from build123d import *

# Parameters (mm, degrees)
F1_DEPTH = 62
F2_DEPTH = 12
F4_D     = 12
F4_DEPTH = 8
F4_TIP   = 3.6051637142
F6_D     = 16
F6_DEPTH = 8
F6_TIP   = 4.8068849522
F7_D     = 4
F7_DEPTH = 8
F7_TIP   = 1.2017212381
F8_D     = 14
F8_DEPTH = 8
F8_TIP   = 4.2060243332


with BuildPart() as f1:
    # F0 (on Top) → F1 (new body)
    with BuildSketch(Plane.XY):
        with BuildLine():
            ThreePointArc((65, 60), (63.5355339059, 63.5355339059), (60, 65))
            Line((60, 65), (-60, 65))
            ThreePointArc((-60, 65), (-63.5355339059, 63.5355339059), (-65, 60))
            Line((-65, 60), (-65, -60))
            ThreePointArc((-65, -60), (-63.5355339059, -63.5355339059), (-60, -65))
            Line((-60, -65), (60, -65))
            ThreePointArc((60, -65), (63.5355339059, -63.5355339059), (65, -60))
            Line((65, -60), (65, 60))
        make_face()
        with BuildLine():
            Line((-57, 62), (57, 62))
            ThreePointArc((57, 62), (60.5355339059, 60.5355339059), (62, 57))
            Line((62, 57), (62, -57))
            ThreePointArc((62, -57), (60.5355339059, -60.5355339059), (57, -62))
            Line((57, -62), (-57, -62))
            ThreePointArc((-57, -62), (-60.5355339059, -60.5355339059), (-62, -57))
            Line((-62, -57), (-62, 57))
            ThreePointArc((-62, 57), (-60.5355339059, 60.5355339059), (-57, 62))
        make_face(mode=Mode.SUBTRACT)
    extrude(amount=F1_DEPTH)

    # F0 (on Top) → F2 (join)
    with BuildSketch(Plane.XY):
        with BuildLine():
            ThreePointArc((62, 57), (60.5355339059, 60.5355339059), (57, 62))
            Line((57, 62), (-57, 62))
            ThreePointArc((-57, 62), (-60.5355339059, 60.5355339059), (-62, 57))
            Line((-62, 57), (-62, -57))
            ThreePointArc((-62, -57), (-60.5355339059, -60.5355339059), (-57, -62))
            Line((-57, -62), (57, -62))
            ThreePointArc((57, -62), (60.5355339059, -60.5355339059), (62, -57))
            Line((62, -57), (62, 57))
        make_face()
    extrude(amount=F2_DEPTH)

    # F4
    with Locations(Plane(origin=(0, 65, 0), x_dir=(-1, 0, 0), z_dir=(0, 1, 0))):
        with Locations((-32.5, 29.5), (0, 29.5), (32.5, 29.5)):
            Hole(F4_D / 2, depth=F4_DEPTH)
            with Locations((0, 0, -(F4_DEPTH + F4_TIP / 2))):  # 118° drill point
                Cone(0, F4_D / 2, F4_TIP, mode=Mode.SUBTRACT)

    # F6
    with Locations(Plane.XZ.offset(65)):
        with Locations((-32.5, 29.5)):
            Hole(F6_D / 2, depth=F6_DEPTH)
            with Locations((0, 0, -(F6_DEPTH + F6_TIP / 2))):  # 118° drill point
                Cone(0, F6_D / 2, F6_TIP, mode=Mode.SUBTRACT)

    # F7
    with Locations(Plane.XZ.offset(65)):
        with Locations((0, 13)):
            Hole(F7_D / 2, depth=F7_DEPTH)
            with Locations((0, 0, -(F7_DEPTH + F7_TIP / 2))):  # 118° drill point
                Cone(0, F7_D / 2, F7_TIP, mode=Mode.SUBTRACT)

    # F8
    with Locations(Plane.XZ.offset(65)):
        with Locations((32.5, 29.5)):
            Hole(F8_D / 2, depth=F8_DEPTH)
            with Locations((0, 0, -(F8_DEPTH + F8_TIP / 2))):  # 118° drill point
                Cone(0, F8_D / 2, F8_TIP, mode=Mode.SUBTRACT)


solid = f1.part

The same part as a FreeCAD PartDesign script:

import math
import FreeCAD as App
import Part
import Sketcher
from FreeCAD import Vector
Q = App.Units.Quantity

doc = App.newDocument("Part")
params = doc.addObject("Spreadsheet::Sheet", "Params")
for row, (alias, value) in enumerate([
    ("sketch1_radius", "5 mm"),
    ("sketch1_width", "120 mm"),
    ("sketch1_width2", "114 mm"),
    ("pad1_length", "62 mm"),
    ("sketch2_radius", "5 mm"),
    ("sketch2_width", "114 mm"),
    ("pad2_length", "12 mm"),
    ("sketch3_diameter", "12 mm"),
    ("hole_diameter", "12 mm"),
    ("hole_depth", "8 mm"),
    ("sketch4_diameter", "16 mm"),
    ("hole2_diameter", "16 mm"),
    ("hole2_depth", "8 mm"),
    ("sketch5_diameter", "4 mm"),
    ("hole3_diameter", "4 mm"),
    ("hole3_depth", "8 mm"),
    ("sketch6_diameter", "14 mm"),
    ("hole4_diameter", "14 mm"),
    ("hole4_depth", "8 mm"),
], start=1):
    params.set(f"A{row}", alias)
    params.set(f"B{row}", "=" + value)
    params.setAlias(f"B{row}", alias)

body = doc.addObject("PartDesign::Body", "Body")

# Sketch on XY plane
sketch1 = doc.addObject("Sketcher::SketchObject", "Sketch")
body.addObject(sketch1)
sketch1.AttachmentSupport = (doc.XY_Plane, [""])
sketch1.MapMode = "FlatFace"
sketch1.addGeometry([
    Part.ArcOfCircle(Part.Circle(Vector(60, 60, 0), Vector(0, 0, 1), 5), math.radians(0), math.radians(90)),  # 0
    Part.LineSegment(Vector(60, 65, 0), Vector(-60, 65, 0)),  # 1
    Part.ArcOfCircle(Part.Circle(Vector(-60, 60, 0), Vector(0, 0, 1), 5), math.radians(90), math.radians(180)),  # 2
    Part.LineSegment(Vector(-65, 60, 0), Vector(-65, -60, 0)),  # 3
    Part.ArcOfCircle(Part.Circle(Vector(-60, -60, 0), Vector(0, 0, 1), 5), math.radians(180), math.radians(270)),  # 4
    Part.LineSegment(Vector(-60, -65, 0), Vector(60, -65, 0)),  # 5
    Part.ArcOfCircle(Part.Circle(Vector(60, -60, 0), Vector(0, 0, 1), 5), math.radians(-90), math.radians(0)),  # 6
    Part.LineSegment(Vector(65, -60, 0), Vector(65, 60, 0)),  # 7
    Part.ArcOfCircle(Part.Circle(Vector(-57, 57, 0), Vector(0, 0, 1), 5), math.radians(90), math.radians(180)),  # 8
    Part.LineSegment(Vector(-57, 62, 0), Vector(57, 62, 0)),  # 9
    Part.ArcOfCircle(Part.Circle(Vector(57, 57, 0), Vector(0, 0, 1), 5), math.radians(0), math.radians(90)),  # 10
    Part.LineSegment(Vector(62, 57, 0), Vector(62, -57, 0)),  # 11
    Part.ArcOfCircle(Part.Circle(Vector(57, -57, 0), Vector(0, 0, 1), 5), math.radians(-90), math.radians(0)),  # 12
    Part.LineSegment(Vector(57, -62, 0), Vector(-57, -62, 0)),  # 13
    Part.ArcOfCircle(Part.Circle(Vector(-57, -57, 0), Vector(0, 0, 1), 5), math.radians(180), math.radians(270)),  # 14
    Part.LineSegment(Vector(-62, -57, 0), Vector(-62, 57, 0)),  # 15
], False)
sketch1.addConstraint([
    Sketcher.Constraint("Tangent", 0, 2, 1, 1),
    Sketcher.Constraint("Tangent", 1, 2, 2, 1),
    Sketcher.Constraint("Tangent", 2, 2, 3, 1),
    Sketcher.Constraint("Tangent", 3, 2, 4, 1),
    Sketcher.Constraint("Tangent", 4, 2, 5, 1),
    Sketcher.Constraint("Tangent", 5, 2, 6, 1),
    Sketcher.Constraint("Tangent", 6, 2, 7, 1),
    Sketcher.Constraint("Tangent", 7, 2, 0, 1),
    Sketcher.Constraint("Tangent", 8, 1, 9, 1),
    Sketcher.Constraint("Tangent", 9, 2, 10, 2),
    Sketcher.Constraint("Tangent", 10, 1, 11, 1),
    Sketcher.Constraint("Tangent", 11, 2, 12, 2),
    Sketcher.Constraint("Tangent", 12, 1, 13, 1),
    Sketcher.Constraint("Tangent", 13, 2, 14, 2),
    Sketcher.Constraint("Tangent", 14, 1, 15, 1),
    Sketcher.Constraint("Tangent", 15, 2, 8, 2),
    Sketcher.Constraint("Horizontal", 1),
    Sketcher.Constraint("Vertical", 3),
    Sketcher.Constraint("Horizontal", 5),
    Sketcher.Constraint("Vertical", 7),
    Sketcher.Constraint("Horizontal", 9),
    Sketcher.Constraint("Vertical", 11),
    Sketcher.Constraint("Horizontal", 13),
    Sketcher.Constraint("Vertical", 15),
    Sketcher.Constraint("Equal", 0, 2),
    Sketcher.Constraint("Equal", 2, 4),
    Sketcher.Constraint("Equal", 4, 6),
    Sketcher.Constraint("Equal", 6, 8),
    Sketcher.Constraint("Equal", 8, 10),
    Sketcher.Constraint("Equal", 10, 12),
    Sketcher.Constraint("Equal", 12, 14),
    Sketcher.Constraint("Symmetric", 0, 3, 4, 3, -1, 1),
    Sketcher.Constraint("Symmetric", 8, 3, 12, 3, -1, 1),
    Sketcher.Constraint("Equal", 5, 3),
    Sketcher.Constraint("Equal", 13, 11),
    Sketcher.Constraint("Radius", 0, Q("5 mm")),
    Sketcher.Constraint("DistanceX", 1, 2, 1, 1, Q("120 mm")),
    Sketcher.Constraint("DistanceX", 9, 1, 9, 2, Q("114 mm")),
])
sketch1.setExpression("Constraints[35]", "Params.sketch1_radius")
sketch1.setExpression("Constraints[36]", "Params.sketch1_width")
sketch1.setExpression("Constraints[37]", "Params.sketch1_width2")
pad1 = doc.addObject("PartDesign::Pad", "Pad")
body.addObject(pad1)
pad1.Profile = sketch1
pad1.setExpression("Length", "Params.pad1_length")

# Sketch on XY plane
sketch2 = doc.addObject("Sketcher::SketchObject", "Sketch001")
body.addObject(sketch2)
sketch2.AttachmentSupport = (doc.XY_Plane, [""])
sketch2.MapMode = "FlatFace"
sketch2.addGeometry([
    Part.ArcOfCircle(Part.Circle(Vector(57, 57, 0), Vector(0, 0, 1), 5), math.radians(0), math.radians(90)),  # 0
    Part.LineSegment(Vector(57, 62, 0), Vector(-57, 62, 0)),  # 1
    Part.ArcOfCircle(Part.Circle(Vector(-57, 57, 0), Vector(0, 0, 1), 5), math.radians(90), math.radians(180)),  # 2
    Part.LineSegment(Vector(-62, 57, 0), Vector(-62, -57, 0)),  # 3
    Part.ArcOfCircle(Part.Circle(Vector(-57, -57, 0), Vector(0, 0, 1), 5), math.radians(180), math.radians(270)),  # 4
    Part.LineSegment(Vector(-57, -62, 0), Vector(57, -62, 0)),  # 5
    Part.ArcOfCircle(Part.Circle(Vector(57, -57, 0), Vector(0, 0, 1), 5), math.radians(-90), math.radians(0)),  # 6
    Part.LineSegment(Vector(62, -57, 0), Vector(62, 57, 0)),  # 7
], False)
sketch2.addConstraint([
    Sketcher.Constraint("Tangent", 0, 2, 1, 1),
    Sketcher.Constraint("Tangent", 1, 2, 2, 1),
    Sketcher.Constraint("Tangent", 2, 2, 3, 1),
    Sketcher.Constraint("Tangent", 3, 2, 4, 1),
    Sketcher.Constraint("Tangent", 4, 2, 5, 1),
    Sketcher.Constraint("Tangent", 5, 2, 6, 1),
    Sketcher.Constraint("Tangent", 6, 2, 7, 1),
    Sketcher.Constraint("Tangent", 7, 2, 0, 1),
    Sketcher.Constraint("Horizontal", 1),
    Sketcher.Constraint("Vertical", 3),
    Sketcher.Constraint("Horizontal", 5),
    Sketcher.Constraint("Vertical", 7),
    Sketcher.Constraint("Equal", 0, 2),
    Sketcher.Constraint("Equal", 2, 4),
    Sketcher.Constraint("Equal", 4, 6),
    Sketcher.Constraint("Symmetric", 0, 3, 4, 3, -1, 1),
    Sketcher.Constraint("Equal", 5, 3),
    Sketcher.Constraint("Radius", 0, Q("5 mm")),
    Sketcher.Constraint("DistanceX", 1, 2, 1, 1, Q("114 mm")),
])
sketch2.setExpression("Constraints[17]", "Params.sketch2_radius")
sketch2.setExpression("Constraints[18]", "Params.sketch2_width")
pad2 = doc.addObject("PartDesign::Pad", "Pad001")
body.addObject(pad2)
pad2.Profile = sketch2
pad2.setExpression("Length", "Params.pad2_length")

# Sketch on XZ plane
sketch3 = doc.addObject("Sketcher::SketchObject", "Sketch002")
body.addObject(sketch3)
sketch3.AttachmentSupport = (doc.XZ_Plane, [""])
sketch3.MapMode = "FlatFace"
sketch3.AttachmentOffset = App.Placement(Vector(0, 0, -65), App.Rotation())
sketch3.addGeometry([
    Part.Circle(Vector(32, 30, 0), Vector(0, 0, 1), 6),
    Part.Circle(Vector(0, 30, 0), Vector(0, 0, 1), 6),
    Part.Circle(Vector(-32, 30, 0), Vector(0, 0, 1), 6),
], False)
sketch3.addConstraint([
    Sketcher.Constraint("Equal", 0, 1),
    Sketcher.Constraint("Equal", 1, 2),
    Sketcher.Constraint("Symmetric", 0, 3, 2, 3, -2),
    Sketcher.Constraint("PointOnObject", 1, 3, -2),
    Sketcher.Constraint("Horizontal", 0, 3, 1, 3),
    Sketcher.Constraint("Diameter", 0, Q("12 mm")),
    Sketcher.Constraint("DistanceX", 2, 3, 0, 3, Q("65 mm")),
    Sketcher.Constraint("DistanceY", -1, 1, 0, 3, Q("29.5 mm")),
])
sketch3.setExpression("Constraints[5]", "Params.sketch3_diameter")
doc.recompute()
hole = doc.addObject("PartDesign::Hole", "Hole")
body.addObject(hole)
hole.Profile = sketch3
hole.ThreadType = "None"
hole.setExpression("Diameter", "Params.hole_diameter")
hole.DepthType = "Dimension"
hole.setExpression("Depth", "Params.hole_depth")
hole.DrillPoint = "Angled"
hole.DrillPointAngle = 118
hole.Reversed = True

# Sketch on XZ plane
sketch4 = doc.addObject("Sketcher::SketchObject", "Sketch003")
body.addObject(sketch4)
sketch4.AttachmentSupport = (doc.XZ_Plane, [""])
sketch4.MapMode = "FlatFace"
sketch4.AttachmentOffset = App.Placement(Vector(0, 0, 65), App.Rotation())
sketch4.addGeometry(Part.Circle(Vector(-32, 30, 0), Vector(0, 0, 1), 8), False)
sketch4.addConstraint([
    Sketcher.Constraint("Diameter", 0, Q("16 mm")),
    Sketcher.Constraint("DistanceX", 0, 3, -1, 1, Q("32.5 mm")),
    Sketcher.Constraint("DistanceY", -1, 1, 0, 3, Q("29.5 mm")),
])
sketch4.setExpression("Constraints[0]", "Params.sketch4_diameter")
doc.recompute()
hole2 = doc.addObject("PartDesign::Hole", "Hole001")
body.addObject(hole2)
hole2.Profile = sketch4
hole2.ThreadType = "None"
hole2.setExpression("Diameter", "Params.hole2_diameter")
hole2.DepthType = "Dimension"
hole2.setExpression("Depth", "Params.hole2_depth")
hole2.DrillPoint = "Angled"
hole2.DrillPointAngle = 118

# Sketch on XZ plane
sketch5 = doc.addObject("Sketcher::SketchObject", "Sketch004")
body.addObject(sketch5)
sketch5.AttachmentSupport = (doc.XZ_Plane, [""])
sketch5.MapMode = "FlatFace"
sketch5.AttachmentOffset = App.Placement(Vector(0, 0, 65), App.Rotation())
sketch5.addGeometry(Part.Circle(Vector(0, 13, 0), Vector(0, 0, 1), 2), False)
sketch5.addConstraint([
    Sketcher.Constraint("PointOnObject", 0, 3, -2),
    Sketcher.Constraint("Diameter", 0, Q("4 mm")),
    Sketcher.Constraint("DistanceY", -1, 1, 0, 3, Q("13 mm")),
])
sketch5.setExpression("Constraints[1]", "Params.sketch5_diameter")
doc.recompute()
hole3 = doc.addObject("PartDesign::Hole", "Hole002")
body.addObject(hole3)
hole3.Profile = sketch5
hole3.ThreadType = "None"
hole3.setExpression("Diameter", "Params.hole3_diameter")
hole3.DepthType = "Dimension"
hole3.setExpression("Depth", "Params.hole3_depth")
hole3.DrillPoint = "Angled"
hole3.DrillPointAngle = 118

# Sketch on XZ plane
sketch6 = doc.addObject("Sketcher::SketchObject", "Sketch005")
body.addObject(sketch6)
sketch6.AttachmentSupport = (doc.XZ_Plane, [""])
sketch6.MapMode = "FlatFace"
sketch6.AttachmentOffset = App.Placement(Vector(0, 0, 65), App.Rotation())
sketch6.addGeometry(Part.Circle(Vector(32, 30, 0), Vector(0, 0, 1), 7), False)
sketch6.addConstraint([
    Sketcher.Constraint("Diameter", 0, Q("14 mm")),
    Sketcher.Constraint("DistanceX", -1, 1, 0, 3, Q("32.5 mm")),
    Sketcher.Constraint("DistanceY", -1, 1, 0, 3, Q("29.5 mm")),
])
sketch6.setExpression("Constraints[0]", "Params.sketch6_diameter")
doc.recompute()
hole4 = doc.addObject("PartDesign::Hole", "Hole003")
body.addObject(hole4)
hole4.Profile = sketch6
hole4.ThreadType = "None"
hole4.setExpression("Diameter", "Params.hole4_diameter")
hole4.DepthType = "Dimension"
hole4.setExpression("Depth", "Params.hole4_depth")
hole4.DrillPoint = "Angled"
hole4.DrillPointAngle = 118

doc.recompute()
